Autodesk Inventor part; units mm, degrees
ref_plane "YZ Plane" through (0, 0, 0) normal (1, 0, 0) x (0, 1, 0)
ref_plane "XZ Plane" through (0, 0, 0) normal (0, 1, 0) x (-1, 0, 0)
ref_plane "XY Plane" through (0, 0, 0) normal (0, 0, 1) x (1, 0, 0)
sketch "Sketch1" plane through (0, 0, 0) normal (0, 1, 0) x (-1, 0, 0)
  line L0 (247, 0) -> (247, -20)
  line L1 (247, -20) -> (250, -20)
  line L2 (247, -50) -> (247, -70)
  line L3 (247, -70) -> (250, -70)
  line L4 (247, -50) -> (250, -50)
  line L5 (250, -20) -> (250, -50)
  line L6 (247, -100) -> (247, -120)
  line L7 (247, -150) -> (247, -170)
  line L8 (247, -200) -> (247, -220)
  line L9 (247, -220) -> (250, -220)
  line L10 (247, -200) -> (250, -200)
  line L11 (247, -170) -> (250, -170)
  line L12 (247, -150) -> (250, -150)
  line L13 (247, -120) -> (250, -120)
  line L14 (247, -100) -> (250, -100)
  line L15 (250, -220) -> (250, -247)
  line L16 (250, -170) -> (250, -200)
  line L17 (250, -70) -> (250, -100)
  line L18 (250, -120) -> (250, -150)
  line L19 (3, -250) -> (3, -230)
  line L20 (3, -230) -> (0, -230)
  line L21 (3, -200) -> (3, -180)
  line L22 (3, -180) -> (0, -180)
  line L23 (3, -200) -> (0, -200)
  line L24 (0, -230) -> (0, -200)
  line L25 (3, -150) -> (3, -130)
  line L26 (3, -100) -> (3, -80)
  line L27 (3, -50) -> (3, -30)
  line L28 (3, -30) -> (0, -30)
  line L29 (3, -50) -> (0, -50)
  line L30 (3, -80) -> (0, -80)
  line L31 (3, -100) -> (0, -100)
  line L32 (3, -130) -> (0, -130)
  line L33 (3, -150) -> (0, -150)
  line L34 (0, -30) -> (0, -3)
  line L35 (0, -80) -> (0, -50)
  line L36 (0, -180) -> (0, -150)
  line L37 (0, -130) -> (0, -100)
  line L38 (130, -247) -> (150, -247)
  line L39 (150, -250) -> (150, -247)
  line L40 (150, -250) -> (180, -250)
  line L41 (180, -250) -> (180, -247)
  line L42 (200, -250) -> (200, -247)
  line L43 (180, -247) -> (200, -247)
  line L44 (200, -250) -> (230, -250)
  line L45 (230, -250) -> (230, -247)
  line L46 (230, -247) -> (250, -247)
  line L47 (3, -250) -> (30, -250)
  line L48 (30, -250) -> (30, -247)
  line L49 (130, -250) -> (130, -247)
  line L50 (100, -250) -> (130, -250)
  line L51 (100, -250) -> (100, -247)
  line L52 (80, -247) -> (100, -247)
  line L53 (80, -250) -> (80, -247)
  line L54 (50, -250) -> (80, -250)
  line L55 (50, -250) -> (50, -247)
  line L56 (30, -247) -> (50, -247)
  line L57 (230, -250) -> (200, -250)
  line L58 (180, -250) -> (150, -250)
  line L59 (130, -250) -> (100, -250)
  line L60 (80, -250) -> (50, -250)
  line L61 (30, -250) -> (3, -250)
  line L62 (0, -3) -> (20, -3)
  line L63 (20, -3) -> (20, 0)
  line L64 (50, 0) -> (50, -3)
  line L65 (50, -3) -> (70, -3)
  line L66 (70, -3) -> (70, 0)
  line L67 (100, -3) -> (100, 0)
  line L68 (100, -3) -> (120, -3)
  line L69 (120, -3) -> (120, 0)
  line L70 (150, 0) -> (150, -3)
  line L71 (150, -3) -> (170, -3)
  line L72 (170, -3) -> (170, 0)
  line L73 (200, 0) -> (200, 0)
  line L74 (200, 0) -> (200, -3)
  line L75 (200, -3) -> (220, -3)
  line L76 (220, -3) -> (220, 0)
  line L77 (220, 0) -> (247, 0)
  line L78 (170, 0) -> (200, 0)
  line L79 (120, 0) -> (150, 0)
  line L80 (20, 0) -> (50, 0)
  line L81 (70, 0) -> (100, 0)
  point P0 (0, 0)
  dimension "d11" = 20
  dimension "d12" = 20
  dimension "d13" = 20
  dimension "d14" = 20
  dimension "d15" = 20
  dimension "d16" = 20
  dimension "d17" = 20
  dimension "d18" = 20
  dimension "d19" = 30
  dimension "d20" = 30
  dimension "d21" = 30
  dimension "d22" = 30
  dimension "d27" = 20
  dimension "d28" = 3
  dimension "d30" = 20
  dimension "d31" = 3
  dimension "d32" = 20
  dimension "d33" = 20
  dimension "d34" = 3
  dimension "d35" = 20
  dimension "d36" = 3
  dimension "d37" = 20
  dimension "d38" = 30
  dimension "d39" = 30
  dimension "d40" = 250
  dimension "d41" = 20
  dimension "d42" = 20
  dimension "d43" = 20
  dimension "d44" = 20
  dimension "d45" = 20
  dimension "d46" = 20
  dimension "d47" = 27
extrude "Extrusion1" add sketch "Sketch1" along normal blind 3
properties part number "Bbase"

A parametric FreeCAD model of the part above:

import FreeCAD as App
import Part
import Sketcher
Q = App.Units.Quantity


def add_polygon(sketch, points):
    """Adds a closed chain of lines whose ends are joined by coincident constraints."""
    first, n = sketch.GeometryCount, len(points)
    for a, b in zip(points, points[1:] + points[:1]):
        sketch.addGeometry(Part.LineSegment(App.Vector(*a, 0), App.Vector(*b, 0)), False)
    for i in range(n):
        sketch.addConstraint(Sketcher.Constraint("Coincident", first + i, 2, first + (i + 1) % n, 1))

doc = App.newDocument("Part")
body = doc.addObject("PartDesign::Body", "Body")

# Sketch on XZ plane
sketch1 = body.newObject("Sketcher::SketchObject", "Sketch")
sketch1.AttachmentSupport = (doc.getObject("XZ_Plane"), [""])
sketch1.MapMode = "FlatFace"
add_polygon(sketch1, [(-247, -20), (-247, 0), (-220, 0), (-220, -3), (-200, -3), (-200, 0), (-170, 0), (-170, -3), (-150, -3), (-150, 0), (-120, 0), (-120, -3), (-100, -3), (-100, 0), (-70, 0), (-70, -3), (-50, -3), (-50, 0), (-20, 0), (-20, -3), (0, -3), (0, -30), (-3, -30), (-3, -50), (0, -50), (0, -80), (-3, -80), (-3, -100), (0, -100), (0, -130), (-3, -130), (-3, -150), (0, -150), (0, -180), (-3, -180), (-3, -200), (0, -200), (0, -230), (-3, -230), (-3, -250), (-30, -250), (-30, -247), (-50, -247), (-50, -250), (-80, -250), (-80, -247), (-100, -247), (-100, -250), (-130, -250), (-130, -247), (-150, -247), (-150, -250), (-180, -250), (-180, -247), (-200, -247), (-200, -250), (-230, -250), (-230, -247), (-250, -247), (-250, -220), (-247, -220), (-247, -200), (-250, -200), (-250, -170), (-247, -170), (-247, -150), (-250, -150), (-250, -120), (-247, -120), (-247, -100), (-250, -100), (-250, -70), (-247, -70), (-247, -50), (-250, -50), (-250, -20)])  # lines 0-75
sketch1.addConstraint([
    Sketcher.Constraint("Vertical", 0),
    Sketcher.Constraint("Horizontal", 1),
    Sketcher.Constraint("Vertical", 2),
    Sketcher.Constraint("Horizontal", 3),
    Sketcher.Constraint("Vertical", 4),
    Sketcher.Constraint("Horizontal", 5),
    Sketcher.Constraint("Vertical", 6),
    Sketcher.Constraint("Horizontal", 7),
    Sketcher.Constraint("Vertical", 8),
    Sketcher.Constraint("Horizontal", 9),
    Sketcher.Constraint("Vertical", 10),
    Sketcher.Constraint("Horizontal", 11),
    Sketcher.Constraint("Vertical", 12),
    Sketcher.Constraint("Horizontal", 13),
    Sketcher.Constraint("Vertical", 14),
    Sketcher.Constraint("Horizontal", 15),
    Sketcher.Constraint("Vertical", 16),
    Sketcher.Constraint("Horizontal", 17),
    Sketcher.Constraint("Vertical", 18),
    Sketcher.Constraint("Horizontal", 19),
    Sketcher.Constraint("Vertical", 20),
    Sketcher.Constraint("Horizontal", 21),
    Sketcher.Constraint("Vertical", 22),
    Sketcher.Constraint("Horizontal", 23),
    Sketcher.Constraint("Vertical", 24),
    Sketcher.Constraint("Horizontal", 25),
    Sketcher.Constraint("Vertical", 26),
    Sketcher.Constraint("Horizontal", 27),
    Sketcher.Constraint("Vertical", 28),
    Sketcher.Constraint("Horizontal", 29),
    Sketcher.Constraint("Vertical", 30),
    Sketcher.Constraint("Horizontal", 31),
    Sketcher.Constraint("Vertical", 32),
    Sketcher.Constraint("Horizontal", 33),
    Sketcher.Constraint("Vertical", 34),
    Sketcher.Constraint("Horizontal", 35),
    Sketcher.Constraint("Vertical", 36),
    Sketcher.Constraint("Horizontal", 37),
    Sketcher.Constraint("Vertical", 38),
    Sketcher.Constraint("Horizontal", 39),
    Sketcher.Constraint("Vertical", 40),
    Sketcher.Constraint("Horizontal", 41),
    Sketcher.Constraint("Vertical", 42),
    Sketcher.Constraint("Horizontal", 43),
    Sketcher.Constraint("Vertical", 44),
    Sketcher.Constraint("Horizontal", 45),
    Sketcher.Constraint("Vertical", 46),
    Sketcher.Constraint("Horizontal", 47),
    Sketcher.Constraint("Vertical", 48),
    Sketcher.Constraint("Horizontal", 49),
    Sketcher.Constraint("Vertical", 50),
    Sketcher.Constraint("Horizontal", 51),
    Sketcher.Constraint("Vertical", 52),
    Sketcher.Constraint("Horizontal", 53),
    Sketcher.Constraint("Vertical", 54),
    Sketcher.Constraint("Horizontal", 55),
    Sketcher.Constraint("Vertical", 56),
    Sketcher.Constraint("Horizontal", 57),
    Sketcher.Constraint("Vertical", 58),
    Sketcher.Constraint("Horizontal", 59),
    Sketcher.Constraint("Vertical", 60),
    Sketcher.Constraint("Horizontal", 61),
    Sketcher.Constraint("Vertical", 62),
    Sketcher.Constraint("Horizontal", 63),
    Sketcher.Constraint("Vertical", 64),
    Sketcher.Constraint("Horizontal", 65),
    Sketcher.Constraint("Vertical", 66),
    Sketcher.Constraint("Horizontal", 67),
    Sketcher.Constraint("Vertical", 68),
    Sketcher.Constraint("Horizontal", 69),
    Sketcher.Constraint("Vertical", 70),
    Sketcher.Constraint("Horizontal", 71),
    Sketcher.Constraint("Vertical", 72),
    Sketcher.Constraint("Horizontal", 73),
    Sketcher.Constraint("Vertical", 74),
    Sketcher.Constraint("Horizontal", 75),
    Sketcher.Constraint("PointOnObject", 0, 2, -1),
    Sketcher.Constraint("PointOnObject", 4, 2, -1),
    Sketcher.Constraint("PointOnObject", 8, 2, -1),
    Sketcher.Constraint("PointOnObject", 12, 2, -1),
    Sketcher.Constraint("PointOnObject", 16, 2, -1),
    Sketcher.Constraint("PointOnObject", 19, 2, -2),
    Sketcher.Constraint("PointOnObject", 23, 2, -2),
    Sketcher.Constraint("PointOnObject", 27, 2, -2),
    Sketcher.Constraint("PointOnObject", 31, 2, -2),
    Sketcher.Constraint("PointOnObject", 35, 2, -2),
    Sketcher.Constraint("Horizontal", 3, 2, 6, 2),
    Sketcher.Constraint("Horizontal", 7, 2, 10, 2),
    Sketcher.Constraint("Horizontal", 11, 2, 14, 2),
    Sketcher.Constraint("Horizontal", 15, 2, 18, 2),
    Sketcher.Constraint("Horizontal", 39, 2, 42, 2),
    Sketcher.Constraint("Horizontal", 41, 2, 44, 2),
    Sketcher.Constraint("Horizontal", 43, 2, 46, 2),
    Sketcher.Constraint("Horizontal", 45, 2, 48, 2),
    Sketcher.Constraint("Horizontal", 47, 2, 50, 2),
    Sketcher.Constraint("Horizontal", 49, 2, 52, 2),
    Sketcher.Constraint("Horizontal", 51, 2, 54, 2),
    Sketcher.Constraint("Horizontal", 53, 2, 56, 2),
    Sketcher.Constraint("Horizontal", 35, 2, 60, 2),
    Sketcher.Constraint("Horizontal", 31, 2, 64, 2),
    Sketcher.Constraint("Horizontal", 27, 2, 68, 2),
    Sketcher.Constraint("Horizontal", 23, 2, 72, 2),
    Sketcher.Constraint("Vertical", 22, 2, 25, 2),
    Sketcher.Constraint("Vertical", 26, 2, 29, 2),
    Sketcher.Constraint("Vertical", 30, 2, 33, 2),
    Sketcher.Constraint("Vertical", 34, 2, 37, 2),
    Sketcher.Constraint("Vertical", 16, 2, 41, 2),
    Sketcher.Constraint("Vertical", 12, 2, 45, 2),
    Sketcher.Constraint("Vertical", 8, 2, 49, 2),
    Sketcher.Constraint("Vertical", 4, 2, 53, 2),
    Sketcher.Constraint("Vertical", 0, 2, 59, 2),
    Sketcher.Constraint("Vertical", 58, 2, 61, 2),
    Sketcher.Constraint("Vertical", 60, 2, 63, 2),
    Sketcher.Constraint("Vertical", 62, 2, 65, 2),
    Sketcher.Constraint("Vertical", 64, 2, 67, 2),
    Sketcher.Constraint("Vertical", 66, 2, 69, 2),
    Sketcher.Constraint("Vertical", 68, 2, 71, 2),
    Sketcher.Constraint("Vertical", 70, 2, 73, 2),
    Sketcher.Constraint("Equal", 3, 7),
    Sketcher.Constraint("Equal", 5, 9),
    Sketcher.Constraint("Equal", 7, 11),
    Sketcher.Constraint("Equal", 9, 13),
    Sketcher.Constraint("Equal", 11, 15),
    Sketcher.Constraint("Equal", 13, 17),
    Sketcher.Constraint("Equal", 15, 19),
    Sketcher.Constraint("Equal", 1, 39),
    Sketcher.Constraint("Equal", 19, 41),
    Sketcher.Constraint("Equal", 17, 43),
    Sketcher.Constraint("Equal", 43, 47),
    Sketcher.Constraint("Equal", 47, 51),
    Sketcher.Constraint("Equal", 51, 55),
    Sketcher.Constraint("Equal", 53, 57),
    Sketcher.Constraint("Equal", 57, 0),
    Sketcher.Constraint("Equal", 75, 2),
    Sketcher.Constraint("Equal", 39, 20),
    Sketcher.Constraint("Equal", 0, 22),
    Sketcher.Constraint("Equal", 55, 24),
    Sketcher.Constraint("Equal", 22, 26),
    Sketcher.Constraint("Equal", 24, 28),
    Sketcher.Constraint("Equal", 26, 30),
    Sketcher.Constraint("Equal", 28, 32),
    Sketcher.Constraint("Equal", 30, 34),
    Sketcher.Constraint("Equal", 32, 36),
    Sketcher.Constraint("Equal", 34, 38),
    Sketcher.Constraint("Equal", 18, 40),
    Sketcher.Constraint("Equal", 20, 58),
    Sketcher.Constraint("Equal", 36, 62),
    Sketcher.Constraint("Equal", 62, 66),
    Sketcher.Constraint("Equal", 66, 70),
    Sketcher.Constraint("DistanceX", 1, 1, 1, 2, Q("1.063 in")),
    Sketcher.Constraint("DistanceX", 3, 1, 3, 2, Q("0.7874 in")),
    Sketcher.Constraint("DistanceX", 5, 1, 5, 2, Q("1.1811 in")),
])
pad1 = body.newObject("PartDesign::Pad", "Pad")
pad1.Profile = sketch1
pad1.Length = Q("0.1181102 in")
pad1.Reversed = True

doc.recompute()
